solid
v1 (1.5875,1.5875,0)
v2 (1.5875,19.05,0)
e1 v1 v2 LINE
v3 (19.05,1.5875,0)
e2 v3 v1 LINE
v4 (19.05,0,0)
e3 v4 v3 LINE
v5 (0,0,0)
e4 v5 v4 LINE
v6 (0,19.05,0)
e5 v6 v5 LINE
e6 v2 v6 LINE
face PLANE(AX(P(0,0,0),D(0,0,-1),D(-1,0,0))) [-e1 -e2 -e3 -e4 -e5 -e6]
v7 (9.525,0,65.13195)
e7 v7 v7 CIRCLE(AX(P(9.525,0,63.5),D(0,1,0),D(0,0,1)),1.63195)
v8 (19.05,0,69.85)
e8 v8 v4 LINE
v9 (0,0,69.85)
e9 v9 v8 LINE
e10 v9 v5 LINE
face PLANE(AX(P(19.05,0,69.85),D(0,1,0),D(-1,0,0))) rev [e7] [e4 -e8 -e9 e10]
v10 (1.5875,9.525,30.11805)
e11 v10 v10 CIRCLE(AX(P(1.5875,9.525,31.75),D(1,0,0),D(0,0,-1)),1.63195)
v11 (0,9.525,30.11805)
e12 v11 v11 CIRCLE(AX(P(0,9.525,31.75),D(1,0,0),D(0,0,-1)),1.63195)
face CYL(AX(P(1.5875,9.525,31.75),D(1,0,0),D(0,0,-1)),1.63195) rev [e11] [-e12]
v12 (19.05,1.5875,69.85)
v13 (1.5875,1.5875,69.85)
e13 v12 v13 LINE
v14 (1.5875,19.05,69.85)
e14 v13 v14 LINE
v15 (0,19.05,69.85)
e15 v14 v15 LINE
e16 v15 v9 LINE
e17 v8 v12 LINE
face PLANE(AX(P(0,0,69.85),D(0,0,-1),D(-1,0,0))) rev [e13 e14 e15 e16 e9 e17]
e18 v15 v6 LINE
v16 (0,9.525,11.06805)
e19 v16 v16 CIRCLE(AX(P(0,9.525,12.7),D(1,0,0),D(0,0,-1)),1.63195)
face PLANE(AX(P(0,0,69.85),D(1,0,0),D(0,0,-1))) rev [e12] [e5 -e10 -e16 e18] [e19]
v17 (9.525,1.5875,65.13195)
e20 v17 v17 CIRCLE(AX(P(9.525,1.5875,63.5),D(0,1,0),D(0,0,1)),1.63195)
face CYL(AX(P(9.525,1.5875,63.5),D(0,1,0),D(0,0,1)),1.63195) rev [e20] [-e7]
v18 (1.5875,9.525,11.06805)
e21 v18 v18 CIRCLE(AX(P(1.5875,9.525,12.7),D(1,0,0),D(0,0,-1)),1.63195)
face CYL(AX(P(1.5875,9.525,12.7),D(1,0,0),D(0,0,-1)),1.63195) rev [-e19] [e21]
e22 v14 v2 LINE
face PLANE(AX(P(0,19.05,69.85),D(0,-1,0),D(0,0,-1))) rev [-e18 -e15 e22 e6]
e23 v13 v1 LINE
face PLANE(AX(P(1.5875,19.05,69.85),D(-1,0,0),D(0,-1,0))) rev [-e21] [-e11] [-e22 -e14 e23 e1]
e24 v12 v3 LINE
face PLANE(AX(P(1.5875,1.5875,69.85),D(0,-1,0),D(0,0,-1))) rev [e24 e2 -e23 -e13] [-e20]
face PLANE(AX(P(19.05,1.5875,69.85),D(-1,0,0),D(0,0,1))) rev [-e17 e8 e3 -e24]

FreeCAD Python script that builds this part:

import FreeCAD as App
import Part
import Sketcher

V = App.Vector
Q = App.Units.Quantity


def add_polygon(sketch, points):
    """Adds a closed chain of lines whose ends are joined by coincident constraints."""
    first, n = sketch.GeometryCount, len(points)
    for a, b in zip(points, points[1:] + points[:1]):
        sketch.addGeometry(Part.LineSegment(App.Vector(*a, 0), App.Vector(*b, 0)), False)
    for i in range(n):
        sketch.addConstraint(Sketcher.Constraint("Coincident", first + i, 2, first + (i + 1) % n, 1))

doc = App.newDocument("Part")
body = doc.addObject("PartDesign::Body", "Body")

# Sketch on XY plane
sketch1 = body.newObject("Sketcher::SketchObject", "Sketch")
sketch1.AttachmentSupport = (doc.getObject("XY_Plane"), [""])
sketch1.MapMode = "FlatFace"
add_polygon(sketch1, [(0, 19.1), (0, 0), (19.1, 0), (19.1, 1.6), (1.6, 1.6), (1.6, 19.1)])  # lines 0-5
sketch1.addConstraint(Sketcher.Constraint("Vertical", 0))
sketch1.addConstraint(Sketcher.Constraint("Horizontal", 1))
sketch1.addConstraint(Sketcher.Constraint("Vertical", 2))
sketch1.addConstraint(Sketcher.Constraint("Horizontal", 3))
sketch1.addConstraint(Sketcher.Constraint("Vertical", 4))
sketch1.addConstraint(Sketcher.Constraint("Horizontal", 5))
sketch1.addConstraint(Sketcher.Constraint("Coincident", 0, 2, -1, 1))
sketch1.addConstraint(Sketcher.Constraint("Equal", 1, 0))
sketch1.addConstraint(Sketcher.Constraint("Equal", 5, 2))
sketch1.addConstraint(Sketcher.Constraint("DistanceX", 1, 1, 1, 2, Q("0.75 in")))
sketch1.addConstraint(Sketcher.Constraint("DistanceX", 3, 2, 3, 1, Q("0.6875 in")))
pad1 = body.newObject("PartDesign::Pad", "Pad")
pad1.Profile = sketch1
pad1.Length = Q("2.75 in")

# Sketch on YZ plane
sketch2 = body.newObject("Sketcher::SketchObject", "Sketch001")
sketch2.AttachmentSupport = (doc.getObject("YZ_Plane"), [""])
sketch2.MapMode = "FlatFace"
sketch2.AttachmentOffset = App.Placement(V(0, 0, 0.0625 * 25.4), App.Rotation())
sketch2.addGeometry(Part.Circle(V(9.5, 12.7, 0), V(0, 0, 1), 1.6), False)
sketch2.addGeometry(Part.Circle(V(9.5, 31.8, 0), V(0, 0, 1), 1.6), False)
sketch2.addConstraint(Sketcher.Constraint("Equal", 0, 1))
sketch2.addConstraint(Sketcher.Constraint("Vertical", 0, 3, 1, 3))
sketch2.addConstraint(Sketcher.Constraint("Diameter", 0, Q("0.1285 in")))
sketch2.addConstraint(Sketcher.Constraint("DistanceY", -1, 1, 0, 3, Q("0.5 in")))
sketch2.addConstraint(Sketcher.Constraint("DistanceY", -1, 1, 1, 3, Q("1.25 in")))
sketch2.addConstraint(Sketcher.Constraint("DistanceX", -1, 1, 0, 3, Q("0.375 in")))
doc.recompute()
hole = body.newObject("PartDesign::Hole", "Hole")
hole.Profile = sketch2
hole.ThreadType = "None"
hole.Diameter = Q("0.1285 in")
hole.DepthType = "ThroughAll"

# Sketch on XZ plane
sketch3 = body.newObject("Sketcher::SketchObject", "Sketch002")
sketch3.AttachmentSupport = (doc.getObject("XZ_Plane"), [""])
sketch3.MapMode = "FlatFace"
sketch3.AttachmentOffset = App.Placement(V(0, 0, -0.0625 * 25.4), App.Rotation())
sketch3.addGeometry(Part.Circle(V(9.5, 63.5, 0), V(0, 0, 1), 1.6), False)
sketch3.addConstraint(Sketcher.Constraint("Diameter", 0, Q("0.1285 in")))
sketch3.addConstraint(Sketcher.Constraint("DistanceY", -1, 1, 0, 3, Q("2.5 in")))
sketch3.addConstraint(Sketcher.Constraint("DistanceX", -1, 1, 0, 3, Q("0.375 in")))
doc.recompute()
hole2 = body.newObject("PartDesign::Hole", "Hole001")
hole2.Profile = sketch3
hole2.ThreadType = "None"
hole2.Diameter = Q("0.1285 in")
hole2.DepthType = "ThroughAll"
hole2.Reversed = True

doc.recompute()
